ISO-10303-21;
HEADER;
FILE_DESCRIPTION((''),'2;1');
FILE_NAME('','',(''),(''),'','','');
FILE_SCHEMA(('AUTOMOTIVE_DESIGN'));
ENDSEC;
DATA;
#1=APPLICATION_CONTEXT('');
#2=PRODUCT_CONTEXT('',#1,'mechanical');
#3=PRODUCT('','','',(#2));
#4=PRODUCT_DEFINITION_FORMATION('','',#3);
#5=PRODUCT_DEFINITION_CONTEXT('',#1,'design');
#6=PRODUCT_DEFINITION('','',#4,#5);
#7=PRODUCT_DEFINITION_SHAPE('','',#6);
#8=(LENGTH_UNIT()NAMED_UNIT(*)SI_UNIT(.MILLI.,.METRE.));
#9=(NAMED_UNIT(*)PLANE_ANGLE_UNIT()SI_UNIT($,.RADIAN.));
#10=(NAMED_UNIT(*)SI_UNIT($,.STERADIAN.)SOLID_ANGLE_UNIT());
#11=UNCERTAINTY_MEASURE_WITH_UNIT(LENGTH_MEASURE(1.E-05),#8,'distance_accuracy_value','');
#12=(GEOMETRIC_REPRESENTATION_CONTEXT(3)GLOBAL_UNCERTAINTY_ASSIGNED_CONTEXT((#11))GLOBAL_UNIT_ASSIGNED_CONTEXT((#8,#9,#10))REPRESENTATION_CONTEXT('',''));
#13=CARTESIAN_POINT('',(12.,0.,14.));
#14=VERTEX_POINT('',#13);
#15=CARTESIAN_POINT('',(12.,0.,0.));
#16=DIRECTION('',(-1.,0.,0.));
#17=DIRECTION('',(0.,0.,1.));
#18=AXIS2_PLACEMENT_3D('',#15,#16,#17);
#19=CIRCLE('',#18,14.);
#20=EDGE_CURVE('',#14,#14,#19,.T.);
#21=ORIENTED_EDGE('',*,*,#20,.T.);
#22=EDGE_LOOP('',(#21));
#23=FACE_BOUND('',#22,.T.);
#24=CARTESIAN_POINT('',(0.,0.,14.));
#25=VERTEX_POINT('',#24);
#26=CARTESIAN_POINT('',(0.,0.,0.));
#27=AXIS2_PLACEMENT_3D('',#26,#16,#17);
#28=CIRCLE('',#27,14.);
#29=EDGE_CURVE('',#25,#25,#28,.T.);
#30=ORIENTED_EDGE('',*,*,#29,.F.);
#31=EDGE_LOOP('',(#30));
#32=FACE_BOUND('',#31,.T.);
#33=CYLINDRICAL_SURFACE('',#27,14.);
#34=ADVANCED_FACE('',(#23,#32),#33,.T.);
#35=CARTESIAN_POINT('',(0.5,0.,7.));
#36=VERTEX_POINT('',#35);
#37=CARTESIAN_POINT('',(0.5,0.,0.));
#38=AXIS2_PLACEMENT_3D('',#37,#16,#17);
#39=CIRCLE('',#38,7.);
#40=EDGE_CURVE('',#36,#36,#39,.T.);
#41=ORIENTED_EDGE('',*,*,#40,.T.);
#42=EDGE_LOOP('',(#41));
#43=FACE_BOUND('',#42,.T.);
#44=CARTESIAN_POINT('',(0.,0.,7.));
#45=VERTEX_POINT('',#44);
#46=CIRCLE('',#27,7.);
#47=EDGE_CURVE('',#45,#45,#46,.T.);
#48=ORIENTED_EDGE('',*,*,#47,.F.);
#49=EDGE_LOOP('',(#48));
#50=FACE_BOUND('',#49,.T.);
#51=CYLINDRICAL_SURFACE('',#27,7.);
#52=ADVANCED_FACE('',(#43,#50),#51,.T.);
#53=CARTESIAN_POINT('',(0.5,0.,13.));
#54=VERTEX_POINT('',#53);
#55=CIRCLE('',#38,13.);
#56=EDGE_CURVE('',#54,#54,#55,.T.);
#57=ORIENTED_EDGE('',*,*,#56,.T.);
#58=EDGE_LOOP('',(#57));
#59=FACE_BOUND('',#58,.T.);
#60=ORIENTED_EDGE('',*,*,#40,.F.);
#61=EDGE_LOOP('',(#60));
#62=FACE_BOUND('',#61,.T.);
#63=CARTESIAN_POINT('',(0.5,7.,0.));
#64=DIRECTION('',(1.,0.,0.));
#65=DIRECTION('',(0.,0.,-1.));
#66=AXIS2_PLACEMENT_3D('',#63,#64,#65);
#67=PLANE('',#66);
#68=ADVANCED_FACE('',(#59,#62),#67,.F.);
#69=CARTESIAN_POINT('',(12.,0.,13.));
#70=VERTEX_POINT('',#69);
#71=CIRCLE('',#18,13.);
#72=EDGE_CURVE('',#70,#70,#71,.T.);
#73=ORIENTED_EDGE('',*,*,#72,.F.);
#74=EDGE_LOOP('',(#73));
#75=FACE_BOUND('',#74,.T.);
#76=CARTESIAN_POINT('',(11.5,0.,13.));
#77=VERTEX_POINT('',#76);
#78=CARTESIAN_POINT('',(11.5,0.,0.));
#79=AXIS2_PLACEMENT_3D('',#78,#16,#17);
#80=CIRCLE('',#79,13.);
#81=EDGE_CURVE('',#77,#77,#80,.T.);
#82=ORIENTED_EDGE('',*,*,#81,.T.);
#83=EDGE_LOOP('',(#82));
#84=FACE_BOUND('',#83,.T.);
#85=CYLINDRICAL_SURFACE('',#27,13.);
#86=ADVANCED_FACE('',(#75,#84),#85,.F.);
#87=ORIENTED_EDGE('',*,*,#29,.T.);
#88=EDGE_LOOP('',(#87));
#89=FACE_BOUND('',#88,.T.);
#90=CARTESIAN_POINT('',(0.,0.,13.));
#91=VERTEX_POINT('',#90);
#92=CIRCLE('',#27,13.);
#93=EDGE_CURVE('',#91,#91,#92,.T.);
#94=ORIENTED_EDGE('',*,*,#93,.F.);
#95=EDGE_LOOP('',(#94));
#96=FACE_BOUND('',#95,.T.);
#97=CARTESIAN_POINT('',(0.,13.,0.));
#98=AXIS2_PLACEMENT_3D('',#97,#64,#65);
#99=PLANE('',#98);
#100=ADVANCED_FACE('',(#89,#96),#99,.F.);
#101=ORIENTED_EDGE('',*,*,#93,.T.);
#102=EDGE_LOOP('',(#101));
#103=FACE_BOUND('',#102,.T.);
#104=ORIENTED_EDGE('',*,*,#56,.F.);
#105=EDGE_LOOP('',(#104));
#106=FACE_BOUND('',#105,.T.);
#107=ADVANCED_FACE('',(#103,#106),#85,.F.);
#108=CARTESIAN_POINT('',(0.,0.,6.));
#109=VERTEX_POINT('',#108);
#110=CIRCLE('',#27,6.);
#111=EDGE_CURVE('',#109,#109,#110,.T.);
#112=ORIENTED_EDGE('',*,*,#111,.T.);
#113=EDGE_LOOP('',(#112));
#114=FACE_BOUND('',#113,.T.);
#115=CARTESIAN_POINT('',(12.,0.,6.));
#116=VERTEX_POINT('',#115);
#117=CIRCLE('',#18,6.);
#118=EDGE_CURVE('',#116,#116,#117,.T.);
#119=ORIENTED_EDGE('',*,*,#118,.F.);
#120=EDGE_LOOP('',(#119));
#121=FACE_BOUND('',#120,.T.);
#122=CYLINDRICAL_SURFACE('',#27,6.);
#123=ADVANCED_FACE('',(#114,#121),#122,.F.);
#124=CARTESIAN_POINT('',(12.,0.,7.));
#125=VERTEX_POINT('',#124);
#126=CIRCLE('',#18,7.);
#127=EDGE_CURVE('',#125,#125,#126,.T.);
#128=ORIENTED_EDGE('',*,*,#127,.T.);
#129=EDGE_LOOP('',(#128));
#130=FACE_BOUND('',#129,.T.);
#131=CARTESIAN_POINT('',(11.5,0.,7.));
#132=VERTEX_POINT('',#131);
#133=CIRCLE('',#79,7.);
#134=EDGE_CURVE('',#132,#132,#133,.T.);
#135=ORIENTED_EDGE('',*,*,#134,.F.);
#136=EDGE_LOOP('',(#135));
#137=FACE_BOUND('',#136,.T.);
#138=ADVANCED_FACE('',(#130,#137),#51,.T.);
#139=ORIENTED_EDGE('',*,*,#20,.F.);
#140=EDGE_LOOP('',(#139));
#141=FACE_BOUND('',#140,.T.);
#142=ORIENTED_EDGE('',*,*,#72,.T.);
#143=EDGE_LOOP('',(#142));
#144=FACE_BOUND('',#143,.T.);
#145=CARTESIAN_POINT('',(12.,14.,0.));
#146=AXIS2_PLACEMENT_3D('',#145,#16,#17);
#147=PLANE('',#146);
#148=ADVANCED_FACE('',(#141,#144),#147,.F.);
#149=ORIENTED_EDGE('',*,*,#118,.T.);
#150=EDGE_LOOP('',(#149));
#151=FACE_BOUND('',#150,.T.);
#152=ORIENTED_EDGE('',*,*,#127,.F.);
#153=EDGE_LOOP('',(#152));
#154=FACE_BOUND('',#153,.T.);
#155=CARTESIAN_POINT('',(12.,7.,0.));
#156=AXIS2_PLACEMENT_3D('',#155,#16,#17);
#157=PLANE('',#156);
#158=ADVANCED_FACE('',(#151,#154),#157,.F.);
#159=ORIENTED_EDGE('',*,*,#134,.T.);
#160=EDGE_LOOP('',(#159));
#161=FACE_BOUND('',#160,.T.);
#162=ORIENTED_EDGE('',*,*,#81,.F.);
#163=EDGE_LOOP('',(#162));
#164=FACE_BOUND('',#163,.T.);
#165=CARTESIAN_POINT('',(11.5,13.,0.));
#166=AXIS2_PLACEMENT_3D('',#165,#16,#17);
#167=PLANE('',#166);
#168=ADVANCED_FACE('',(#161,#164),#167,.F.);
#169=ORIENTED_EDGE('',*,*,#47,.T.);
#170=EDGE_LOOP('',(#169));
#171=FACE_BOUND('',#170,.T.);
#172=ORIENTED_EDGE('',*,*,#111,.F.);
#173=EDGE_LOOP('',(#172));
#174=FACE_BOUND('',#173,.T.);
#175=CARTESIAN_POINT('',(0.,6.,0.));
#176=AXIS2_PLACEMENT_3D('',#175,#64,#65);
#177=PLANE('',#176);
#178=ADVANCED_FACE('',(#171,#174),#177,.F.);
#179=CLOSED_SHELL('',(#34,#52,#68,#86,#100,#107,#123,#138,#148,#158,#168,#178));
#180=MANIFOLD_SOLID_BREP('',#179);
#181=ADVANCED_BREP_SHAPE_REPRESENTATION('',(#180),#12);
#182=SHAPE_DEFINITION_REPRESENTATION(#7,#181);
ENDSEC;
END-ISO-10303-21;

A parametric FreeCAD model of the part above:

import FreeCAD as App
import Part
import Sketcher

V = App.Vector
Q = App.Units.Quantity


def add_polygon(sketch, points):
    """Adds a closed chain of lines whose ends are joined by coincident constraints."""
    first, n = sketch.GeometryCount, len(points)
    for a, b in zip(points, points[1:] + points[:1]):
        sketch.addGeometry(Part.LineSegment(App.Vector(*a, 0), App.Vector(*b, 0)), False)
    for i in range(n):
        sketch.addConstraint(Sketcher.Constraint("Coincident", first + i, 2, first + (i + 1) % n, 1))

doc = App.newDocument("Part")
body = doc.addObject("PartDesign::Body", "Body")

sketch1 = body.newObject("Sketcher::SketchObject", "Sketch")
sketch1.AttachmentSupport = (doc.getObject("XY_Plane"), [""])
sketch1.MapMode = "FlatFace"
add_polygon(sketch1, [(12, 14), (0, 14), (0, 13), (0.5, 13), (0.5, 7), (0, 7), (0, 6), (12, 6), (12, 7), (11.5, 7), (11.5, 13), (12, 13)])
sketch1.addConstraint(Sketcher.Constraint("Horizontal", 0))
sketch1.addConstraint(Sketcher.Constraint("Vertical", 1))
sketch1.addConstraint(Sketcher.Constraint("Horizontal", 2))
sketch1.addConstraint(Sketcher.Constraint("Vertical", 3))
sketch1.addConstraint(Sketcher.Constraint("Horizontal", 4))
sketch1.addConstraint(Sketcher.Constraint("Vertical", 5))
sketch1.addConstraint(Sketcher.Constraint("Horizontal", 6))
sketch1.addConstraint(Sketcher.Constraint("Vertical", 7))
sketch1.addConstraint(Sketcher.Constraint("Horizontal", 8))
sketch1.addConstraint(Sketcher.Constraint("Vertical", 9))
sketch1.addConstraint(Sketcher.Constraint("Horizontal", 10))
sketch1.addConstraint(Sketcher.Constraint("Vertical", 11))
sketch1.addConstraint(Sketcher.Constraint("PointOnObject", 0, 2, -2))
sketch1.addConstraint(Sketcher.Constraint("PointOnObject", 4, 2, -2))
sketch1.addConstraint(Sketcher.Constraint("Horizontal", 4, 2, 7, 2))
sketch1.addConstraint(Sketcher.Constraint("Horizontal", 2, 2, 9, 2))
sketch1.addConstraint(Sketcher.Constraint("Vertical", 7, 2, 10, 2))
sketch1.addConstraint(Sketcher.Constraint("Equal", 4, 8))
sketch1.addConstraint(Sketcher.Constraint("Equal", 1, 5))
sketch1.addConstraint(Sketcher.Constraint("DistanceX", 0, 2, 0, 1, Q("12 mm")))
sketch1.addConstraint(Sketcher.Constraint("DistanceY", 1, 2, 1, 1, Q("1 mm")))
sketch1.addConstraint(Sketcher.Constraint("DistanceY", 3, 2, 3, 1, Q("6 mm")))
sketch1.addConstraint(Sketcher.Constraint("DistanceX", 2, 1, 2, 2, Q("0.5 mm")))
sketch1.addConstraint(Sketcher.Constraint("DistanceY", -1, 1, 0, 2, Q("14 mm")))
revolution = body.newObject("PartDesign::Revolution", "Revolution")
revolution.Profile = sketch1
revolution.ReferenceAxis = (sketch1, ["H_Axis"])
revolution.Angle = 360

doc.recompute()
